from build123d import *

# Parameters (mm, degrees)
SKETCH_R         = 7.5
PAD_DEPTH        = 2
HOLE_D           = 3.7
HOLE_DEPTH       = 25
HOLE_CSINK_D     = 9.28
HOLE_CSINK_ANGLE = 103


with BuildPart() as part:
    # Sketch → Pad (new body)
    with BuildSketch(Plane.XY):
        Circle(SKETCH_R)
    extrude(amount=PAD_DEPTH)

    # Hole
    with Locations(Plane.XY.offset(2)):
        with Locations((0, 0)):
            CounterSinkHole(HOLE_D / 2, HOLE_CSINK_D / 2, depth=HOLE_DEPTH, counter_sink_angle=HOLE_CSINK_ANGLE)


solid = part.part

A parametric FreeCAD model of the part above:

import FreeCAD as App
import Part
import Sketcher

doc = App.newDocument("Part")
body = doc.addObject("PartDesign::Body", "Body")

# Sketch on XY plane
sketch1 = body.newObject("Sketcher::SketchObject", "Sketch")
sketch1.AttachmentSupport = (doc.getObject("XY_Plane"), [""])
sketch1.MapMode = "FlatFace"
sketch1.addGeometry(Part.Circle(App.Vector(0, 0, 0), App.Vector(0, 0, 1), 8), False)
sketch1.addConstraint([
    Sketcher.Constraint("Coincident", 0, 3, -1, 1),
    Sketcher.Constraint("Diameter", 0, 15.0),
])
pad1 = body.newObject("PartDesign::Pad", "Pad")
pad1.Profile = sketch1
pad1.Length = 2

# Sketch on XY plane
sketch2 = body.newObject("Sketcher::SketchObject", "Sketch001")
sketch2.AttachmentSupport = (doc.getObject("XY_Plane"), [""])
sketch2.MapMode = "FlatFace"
sketch2.AttachmentOffset = App.Placement(App.Vector(0, 0, 2), App.Rotation())
sketch2.addGeometry(Part.Circle(App.Vector(0, 0, 0), App.Vector(0, 0, 1), 1.9), False)
sketch2.addConstraint([
    Sketcher.Constraint("Coincident", 0, 3, -1, 1),
    Sketcher.Constraint("Diameter", 0, 3.7),
])
doc.recompute()
hole = body.newObject("PartDesign::Hole", "Hole")
hole.Profile = sketch2
hole.ThreadType = "None"
hole.Diameter = 3.7
hole.DepthType = "Dimension"
hole.Depth = 25
hole.DrillPoint = "Flat"
hole.HoleCutType = "Countersink"
hole.HoleCutDiameter = 9.28
hole.HoleCutCountersinkAngle = 103

doc.recompute()
